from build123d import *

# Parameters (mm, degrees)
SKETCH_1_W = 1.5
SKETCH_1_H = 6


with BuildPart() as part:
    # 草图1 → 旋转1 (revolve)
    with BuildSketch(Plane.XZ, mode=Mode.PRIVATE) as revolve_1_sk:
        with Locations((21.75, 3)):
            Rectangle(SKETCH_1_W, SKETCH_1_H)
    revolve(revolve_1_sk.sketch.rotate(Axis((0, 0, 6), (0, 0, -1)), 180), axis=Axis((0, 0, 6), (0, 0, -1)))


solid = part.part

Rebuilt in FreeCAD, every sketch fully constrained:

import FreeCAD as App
import Part
import Sketcher

V = App.Vector


def add_polygon(sketch, points):
    """Adds a closed chain of lines whose ends are joined by coincident constraints."""
    first, n = sketch.GeometryCount, len(points)
    for a, b in zip(points, points[1:] + points[:1]):
        sketch.addGeometry(Part.LineSegment(App.Vector(*a, 0), App.Vector(*b, 0)), False)
    for i in range(n):
        sketch.addConstraint(Sketcher.Constraint("Coincident", first + i, 2, first + (i + 1) % n, 1))

doc = App.newDocument("Part")
body = doc.addObject("PartDesign::Body", "Body")

# Sketch on XZ plane
sketch1 = body.newObject("Sketcher::SketchObject", "Sketch")
sketch1.AttachmentSupport = (doc.getObject("XZ_Plane"), [""])
sketch1.MapMode = "FlatFace"
add_polygon(sketch1, [(21, 6), (21, 0), (22.5, 0), (22.5, 6)])  # lines 0-3
sketch1.addConstraint([
    Sketcher.Constraint("Vertical", 0),
    Sketcher.Constraint("Horizontal", 1),
    Sketcher.Constraint("Vertical", 2),
    Sketcher.Constraint("Horizontal", 3),
    Sketcher.Constraint("PointOnObject", 0, 2, -1),
    Sketcher.Constraint("DistanceY", 0, 2, 0, 1, 6.0),
    Sketcher.Constraint("DistanceX", 1, 1, 1, 2, 1.5),
    Sketcher.Constraint("DistanceX", -1, 1, 0, 2, 21.0),
])
revolution = body.newObject("PartDesign::Revolution", "Revolution")
revolution.Profile = sketch1
revolution.ReferenceAxis = (sketch1, ["V_Axis"])
revolution.Angle = 360

doc.recompute()
